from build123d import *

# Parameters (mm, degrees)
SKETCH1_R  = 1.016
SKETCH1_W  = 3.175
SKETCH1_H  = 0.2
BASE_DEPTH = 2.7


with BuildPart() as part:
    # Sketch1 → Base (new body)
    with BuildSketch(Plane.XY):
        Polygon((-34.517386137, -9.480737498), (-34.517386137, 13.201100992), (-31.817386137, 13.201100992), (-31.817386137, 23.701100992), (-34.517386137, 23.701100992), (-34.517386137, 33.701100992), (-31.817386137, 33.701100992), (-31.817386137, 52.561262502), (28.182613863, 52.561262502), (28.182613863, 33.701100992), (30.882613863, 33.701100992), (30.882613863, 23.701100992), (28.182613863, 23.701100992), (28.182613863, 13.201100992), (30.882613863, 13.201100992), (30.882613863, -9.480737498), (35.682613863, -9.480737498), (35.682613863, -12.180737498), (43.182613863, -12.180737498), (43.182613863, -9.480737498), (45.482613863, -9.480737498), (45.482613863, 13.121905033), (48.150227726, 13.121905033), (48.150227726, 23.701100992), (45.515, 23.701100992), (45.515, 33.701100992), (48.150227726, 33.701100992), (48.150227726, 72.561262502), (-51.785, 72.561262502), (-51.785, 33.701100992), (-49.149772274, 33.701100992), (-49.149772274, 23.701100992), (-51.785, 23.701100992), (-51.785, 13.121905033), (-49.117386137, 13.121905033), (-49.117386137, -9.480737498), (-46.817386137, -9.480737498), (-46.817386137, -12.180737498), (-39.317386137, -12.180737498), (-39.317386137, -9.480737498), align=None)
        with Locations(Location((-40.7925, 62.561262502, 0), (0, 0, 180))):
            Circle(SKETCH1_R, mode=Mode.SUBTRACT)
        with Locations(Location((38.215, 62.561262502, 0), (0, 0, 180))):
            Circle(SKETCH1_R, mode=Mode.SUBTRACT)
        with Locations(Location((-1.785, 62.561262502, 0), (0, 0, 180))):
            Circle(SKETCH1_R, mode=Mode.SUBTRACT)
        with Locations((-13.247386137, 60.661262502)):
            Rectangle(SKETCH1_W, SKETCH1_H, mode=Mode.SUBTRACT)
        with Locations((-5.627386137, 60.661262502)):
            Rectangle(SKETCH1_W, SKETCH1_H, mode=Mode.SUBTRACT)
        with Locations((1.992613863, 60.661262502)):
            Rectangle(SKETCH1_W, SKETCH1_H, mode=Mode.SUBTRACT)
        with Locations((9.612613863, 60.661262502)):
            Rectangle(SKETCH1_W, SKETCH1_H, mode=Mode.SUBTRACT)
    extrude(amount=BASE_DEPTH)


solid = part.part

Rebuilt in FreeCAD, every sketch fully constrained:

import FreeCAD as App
import Part
import Sketcher
from FreeCAD import Vector
Q = App.Units.Quantity

doc = App.newDocument("Part")
body = doc.addObject("PartDesign::Body", "Body")

# Sketch on XY plane
sketch1 = doc.addObject("Sketcher::SketchObject", "Sketch")
body.addObject(sketch1)
sketch1.AttachmentSupport = (doc.XY_Plane, [""])
sketch1.MapMode = "FlatFace"
sketch1.addGeometry(Part.LineSegment(Vector(-34.52, -9.48, 0), Vector(-34.52, 13.2, 0)), False)
sketch1.addGeometry(Part.LineSegment(Vector(-34.52, 13.2, 0), Vector(-31.82, 13.2, 0)), False)
sketch1.addGeometry(Part.LineSegment(Vector(-31.82, 13.2, 0), Vector(-31.82, 23.7, 0)), False)
sketch1.addGeometry(Part.LineSegment(Vector(-31.82, 23.7, 0), Vector(-34.52, 23.7, 0)), False)
sketch1.addGeometry(Part.LineSegment(Vector(-34.52, 23.7, 0), Vector(-34.52, 33.7, 0)), False)
sketch1.addGeometry(Part.LineSegment(Vector(-34.52, 33.7, 0), Vector(-31.82, 33.7, 0)), False)
sketch1.addGeometry(Part.LineSegment(Vector(-31.82, 33.7, 0), Vector(-31.82, 52.56, 0)), False)
sketch1.addGeometry(Part.LineSegment(Vector(-31.82, 52.56, 0), Vector(28.18, 52.56, 0)), False)
sketch1.addGeometry(Part.LineSegment(Vector(28.18, 52.56, 0), Vector(28.18, 33.7, 0)), False)
sketch1.addGeometry(Part.LineSegment(Vector(28.18, 33.7, 0), Vector(30.88, 33.7, 0)), False)
sketch1.addGeometry(Part.LineSegment(Vector(30.88, 33.7, 0), Vector(30.88, 23.7, 0)), False)
sketch1.addGeometry(Part.LineSegment(Vector(30.88, 23.7, 0), Vector(28.18, 23.7, 0)), False)
sketch1.addGeometry(Part.LineSegment(Vector(28.18, 23.7, 0), Vector(28.18, 13.2, 0)), False)
sketch1.addGeometry(Part.LineSegment(Vector(28.18, 13.2, 0), Vector(30.88, 13.2, 0)), False)
sketch1.addGeometry(Part.LineSegment(Vector(30.88, 13.2, 0), Vector(30.88, -9.48, 0)), False)
sketch1.addGeometry(Part.LineSegment(Vector(30.88, -9.48, 0), Vector(35.68, -9.48, 0)), False)
sketch1.addGeometry(Part.LineSegment(Vector(35.68, -9.48, 0), Vector(35.68, -12.18, 0)), False)
sketch1.addGeometry(Part.LineSegment(Vector(35.68, -12.18, 0), Vector(43.18, -12.18, 0)), False)
sketch1.addGeometry(Part.LineSegment(Vector(43.18, -12.18, 0), Vector(43.18, -9.48, 0)), False)
sketch1.addGeometry(Part.LineSegment(Vector(43.18, -9.48, 0), Vector(45.48, -9.48, 0)), False)
sketch1.addGeometry(Part.LineSegment(Vector(45.48, -9.48, 0), Vector(45.48, 13.12, 0)), False)
sketch1.addGeometry(Part.LineSegment(Vector(45.48, 13.12, 0), Vector(48.15, 13.12, 0)), False)
sketch1.addGeometry(Part.LineSegment(Vector(48.15, 13.12, 0), Vector(48.15, 23.7, 0)), False)
sketch1.addGeometry(Part.LineSegment(Vector(48.15, 23.7, 0), Vector(45.52, 23.7, 0)), False)
sketch1.addGeometry(Part.LineSegment(Vector(45.52, 23.7, 0), Vector(45.52, 33.7, 0)), False)
sketch1.addGeometry(Part.LineSegment(Vector(45.52, 33.7, 0), Vector(48.15, 33.7, 0)), False)
sketch1.addGeometry(Part.LineSegment(Vector(48.15, 33.7, 0), Vector(48.15, 72.56, 0)), False)
sketch1.addGeometry(Part.LineSegment(Vector(48.15, 72.56, 0), Vector(-51.78, 72.56, 0)), False)
sketch1.addGeometry(Part.LineSegment(Vector(-51.78, 72.56, 0), Vector(-51.78, 33.7, 0)), False)
sketch1.addGeometry(Part.LineSegment(Vector(-51.78, 33.7, 0), Vector(-49.15, 33.7, 0)), False)
sketch1.addGeometry(Part.LineSegment(Vector(-49.15, 33.7, 0), Vector(-49.15, 23.7, 0)), False)
sketch1.addGeometry(Part.LineSegment(Vector(-49.15, 23.7, 0), Vector(-51.78, 23.7, 0)), False)
sketch1.addGeometry(Part.LineSegment(Vector(-51.78, 23.7, 0), Vector(-51.78, 13.12, 0)), False)
sketch1.addGeometry(Part.LineSegment(Vector(-51.78, 13.12, 0), Vector(-49.12, 13.12, 0)), False)
sketch1.addGeometry(Part.LineSegment(Vector(-49.12, 13.12, 0), Vector(-49.12, -9.48, 0)), False)
sketch1.addGeometry(Part.LineSegment(Vector(-49.12, -9.48, 0), Vector(-46.82, -9.48, 0)), False)
sketch1.addGeometry(Part.LineSegment(Vector(-46.82, -9.48, 0), Vector(-46.82, -12.18, 0)), False)
sketch1.addGeometry(Part.LineSegment(Vector(-46.82, -12.18, 0), Vector(-39.32, -12.18, 0)), False)
sketch1.addGeometry(Part.LineSegment(Vector(-39.32, -12.18, 0), Vector(-39.32, -9.48, 0)), False)
sketch1.addGeometry(Part.LineSegment(Vector(-39.32, -9.48, 0), Vector(-34.52, -9.48, 0)), False)
sketch1.addGeometry(Part.LineSegment(Vector(-11.66, 60.56, 0), Vector(-14.83, 60.56, 0)), False)
sketch1.addGeometry(Part.LineSegment(Vector(-14.83, 60.56, 0), Vector(-14.83, 60.76, 0)), False)
sketch1.addGeometry(Part.LineSegment(Vector(-14.83, 60.76, 0), Vector(-11.66, 60.76, 0)), False)
sketch1.addGeometry(Part.LineSegment(Vector(-11.66, 60.76, 0), Vector(-11.66, 60.56, 0)), False)
sketch1.addGeometry(Part.LineSegment(Vector(-4.04, 60.56, 0), Vector(-7.21, 60.56, 0)), False)
sketch1.addGeometry(Part.LineSegment(Vector(-7.21, 60.56, 0), Vector(-7.21, 60.76, 0)), False)
sketch1.addGeometry(Part.LineSegment(Vector(-7.21, 60.76, 0), Vector(-4.04, 60.76, 0)), False)
sketch1.addGeometry(Part.LineSegment(Vector(-4.04, 60.76, 0), Vector(-4.04, 60.56, 0)), False)
sketch1.addGeometry(Part.LineSegment(Vector(3.58, 60.56, 0), Vector(0.41, 60.56, 0)), False)
sketch1.addGeometry(Part.LineSegment(Vector(0.41, 60.56, 0), Vector(0.41, 60.76, 0)), False)
sketch1.addGeometry(Part.LineSegment(Vector(0.41, 60.76, 0), Vector(3.58, 60.76, 0)), False)
sketch1.addGeometry(Part.LineSegment(Vector(3.58, 60.76, 0), Vector(3.58, 60.56, 0)), False)
sketch1.addGeometry(Part.LineSegment(Vector(11.2, 60.56, 0), Vector(8.03, 60.56, 0)), False)
sketch1.addGeometry(Part.LineSegment(Vector(8.03, 60.56, 0), Vector(8.03, 60.76, 0)), False)
sketch1.addGeometry(Part.LineSegment(Vector(8.03, 60.76, 0), Vector(11.2, 60.76, 0)), False)
sketch1.addGeometry(Part.LineSegment(Vector(11.2, 60.76, 0), Vector(11.2, 60.56, 0)), False)
sketch1.addGeometry(Part.Circle(Vector(-40.79, 62.56, 0), Vector(0, 0, 1), 1.02), False)
sketch1.addGeometry(Part.Circle(Vector(-1.78, 62.56, 0), Vector(0, 0, 1), 1.02), False)
sketch1.addGeometry(Part.Circle(Vector(38.22, 62.56, 0), Vector(0, 0, 1), 1.02), False)
sketch1.addConstraint(Sketcher.Constraint("Coincident", 0, 2, 1, 1))
sketch1.addConstraint(Sketcher.Constraint("Coincident", 1, 2, 2, 1))
sketch1.addConstraint(Sketcher.Constraint("Coincident", 2, 2, 3, 1))
sketch1.addConstraint(Sketcher.Constraint("Coincident", 3, 2, 4, 1))
sketch1.addConstraint(Sketcher.Constraint("Coincident", 4, 2, 5, 1))
sketch1.addConstraint(Sketcher.Constraint("Coincident", 5, 2, 6, 1))
sketch1.addConstraint(Sketcher.Constraint("Coincident", 6, 2, 7, 1))
sketch1.addConstraint(Sketcher.Constraint("Coincident", 7, 2, 8, 1))
sketch1.addConstraint(Sketcher.Constraint("Coincident", 8, 2, 9, 1))
sketch1.addConstraint(Sketcher.Constraint("Coincident", 9, 2, 10, 1))
sketch1.addConstraint(Sketcher.Constraint("Coincident", 10, 2, 11, 1))
sketch1.addConstraint(Sketcher.Constraint("Coincident", 11, 2, 12, 1))
sketch1.addConstraint(Sketcher.Constraint("Coincident", 12, 2, 13, 1))
sketch1.addConstraint(Sketcher.Constraint("Coincident", 13, 2, 14, 1))
sketch1.addConstraint(Sketcher.Constraint("Coincident", 14, 2, 15, 1))
sketch1.addConstraint(Sketcher.Constraint("Coincident", 15, 2, 16, 1))
sketch1.addConstraint(Sketcher.Constraint("Coincident", 16, 2, 17, 1))
sketch1.addConstraint(Sketcher.Constraint("Coincident", 17, 2, 18, 1))
sketch1.addConstraint(Sketcher.Constraint("Coincident", 18, 2, 19, 1))
sketch1.addConstraint(Sketcher.Constraint("Coincident", 19, 2, 20, 1))
sketch1.addConstraint(Sketcher.Constraint("Coincident", 20, 2, 21, 1))
sketch1.addConstraint(Sketcher.Constraint("Coincident", 21, 2, 22, 1))
sketch1.addConstraint(Sketcher.Constraint("Coincident", 22, 2, 23, 1))
sketch1.addConstraint(Sketcher.Constraint("Coincident", 23, 2, 24, 1))
sketch1.addConstraint(Sketcher.Constraint("Coincident", 24, 2, 25, 1))
sketch1.addConstraint(Sketcher.Constraint("Coincident", 25, 2, 26, 1))
sketch1.addConstraint(Sketcher.Constraint("Coincident", 26, 2, 27, 1))
sketch1.addConstraint(Sketcher.Constraint("Coincident", 27, 2, 28, 1))
sketch1.addConstraint(Sketcher.Constraint("Coincident", 28, 2, 29, 1))
sketch1.addConstraint(Sketcher.Constraint("Coincident", 29, 2, 30, 1))
sketch1.addConstraint(Sketcher.Constraint("Coincident", 30, 2, 31, 1))
sketch1.addConstraint(Sketcher.Constraint("Coincident", 31, 2, 32, 1))
sketch1.addConstraint(Sketcher.Constraint("Coincident", 32, 2, 33, 1))
sketch1.addConstraint(Sketcher.Constraint("Coincident", 33, 2, 34, 1))
sketch1.addConstraint(Sketcher.Constraint("Coincident", 34, 2, 35, 1))
sketch1.addConstraint(Sketcher.Constraint("Coincident", 35, 2, 36, 1))
sketch1.addConstraint(Sketcher.Constraint("Coincident", 36, 2, 37, 1))
sketch1.addConstraint(Sketcher.Constraint("Coincident", 37, 2, 38, 1))
sketch1.addConstraint(Sketcher.Constraint("Coincident", 38, 2, 39, 1))
sketch1.addConstraint(Sketcher.Constraint("Coincident", 39, 2, 0, 1))
sketch1.addConstraint(Sketcher.Constraint("Coincident", 40, 2, 41, 1))
sketch1.addConstraint(Sketcher.Constraint("Coincident", 41, 2, 42, 1))
sketch1.addConstraint(Sketcher.Constraint("Coincident", 42, 2, 43, 1))
sketch1.addConstraint(Sketcher.Constraint("Coincident", 43, 2, 40, 1))
sketch1.addConstraint(Sketcher.Constraint("Coincident", 44, 2, 45, 1))
sketch1.addConstraint(Sketcher.Constraint("Coincident", 45, 2, 46, 1))
sketch1.addConstraint(Sketcher.Constraint("Coincident", 46, 2, 47, 1))
sketch1.addConstraint(Sketcher.Constraint("Coincident", 47, 2, 44, 1))
sketch1.addConstraint(Sketcher.Constraint("Coincident", 48, 2, 49, 1))
sketch1.addConstraint(Sketcher.Constraint("Coincident", 49, 2, 50, 1))
sketch1.addConstraint(Sketcher.Constraint("Coincident", 50, 2, 51, 1))
sketch1.addConstraint(Sketcher.Constraint("Coincident", 51, 2, 48, 1))
sketch1.addConstraint(Sketcher.Constraint("Coincident", 52, 2, 53, 1))
sketch1.addConstraint(Sketcher.Constraint("Coincident", 53, 2, 54, 1))
sketch1.addConstraint(Sketcher.Constraint("Coincident", 54, 2, 55, 1))
sketch1.addConstraint(Sketcher.Constraint("Coincident", 55, 2, 52, 1))
sketch1.addConstraint(Sketcher.Constraint("Vertical", 0))
sketch1.addConstraint(Sketcher.Constraint("Horizontal", 1))
sketch1.addConstraint(Sketcher.Constraint("Vertical", 2))
sketch1.addConstraint(Sketcher.Constraint("Horizontal", 3))
sketch1.addConstraint(Sketcher.Constraint("Vertical", 4))
sketch1.addConstraint(Sketcher.Constraint("Horizontal", 5))
sketch1.addConstraint(Sketcher.Constraint("Vertical", 6))
sketch1.addConstraint(Sketcher.Constraint("Horizontal", 7))
sketch1.addConstraint(Sketcher.Constraint("Vertical", 8))
sketch1.addConstraint(Sketcher.Constraint("Horizontal", 9))
sketch1.addConstraint(Sketcher.Constraint("Vertical", 10))
sketch1.addConstraint(Sketcher.Constraint("Horizontal", 11))
sketch1.addConstraint(Sketcher.Constraint("Vertical", 12))
sketch1.addConstraint(Sketcher.Constraint("Horizontal", 13))
sketch1.addConstraint(Sketcher.Constraint("Vertical", 14))
sketch1.addConstraint(Sketcher.Constraint("Horizontal", 15))
sketch1.addConstraint(Sketcher.Constraint("Vertical", 16))
sketch1.addConstraint(Sketcher.Constraint("Horizontal", 17))
sketch1.addConstraint(Sketcher.Constraint("Vertical", 18))
sketch1.addConstraint(Sketcher.Constraint("Horizontal", 19))
sketch1.addConstraint(Sketcher.Constraint("Vertical", 20))
sketch1.addConstraint(Sketcher.Constraint("Horizontal", 21))
sketch1.addConstraint(Sketcher.Constraint("Vertical", 22))
sketch1.addConstraint(Sketcher.Constraint("Horizontal", 23))
sketch1.addConstraint(Sketcher.Constraint("Vertical", 24))
sketch1.addConstraint(Sketcher.Constraint("Horizontal", 25))
sketch1.addConstraint(Sketcher.Constraint("Vertical", 26))
sketch1.addConstraint(Sketcher.Constraint("Horizontal", 27))
sketch1.addConstraint(Sketcher.Constraint("Vertical", 28))
sketch1.addConstraint(Sketcher.Constraint("Horizontal", 29))
sketch1.addConstraint(Sketcher.Constraint("Vertical", 30))
sketch1.addConstraint(Sketcher.Constraint("Horizontal", 31))
sketch1.addConstraint(Sketcher.Constraint("Vertical", 32))
sketch1.addConstraint(Sketcher.Constraint("Horizontal", 33))
sketch1.addConstraint(Sketcher.Constraint("Vertical", 34))
sketch1.addConstraint(Sketcher.Constraint("Horizontal", 35))
sketch1.addConstraint(Sketcher.Constraint("Vertical", 36))
sketch1.addConstraint(Sketcher.Constraint("Horizontal", 37))
sketch1.addConstraint(Sketcher.Constraint("Vertical", 38))
sketch1.addConstraint(Sketcher.Constraint("Horizontal", 39))
sketch1.addConstraint(Sketcher.Constraint("Horizontal", 40))
sketch1.addConstraint(Sketcher.Constraint("Vertical", 41))
sketch1.addConstraint(Sketcher.Constraint("Horizontal", 42))
sketch1.addConstraint(Sketcher.Constraint("Vertical", 43))
sketch1.addConstraint(Sketcher.Constraint("Horizontal", 44))
sketch1.addConstraint(Sketcher.Constraint("Vertical", 45))
sketch1.addConstraint(Sketcher.Constraint("Horizontal", 46))
sketch1.addConstraint(Sketcher.Constraint("Vertical", 47))
sketch1.addConstraint(Sketcher.Constraint("Horizontal", 48))
sketch1.addConstraint(Sketcher.Constraint("Vertical", 49))
sketch1.addConstraint(Sketcher.Constraint("Horizontal", 50))
sketch1.addConstraint(Sketcher.Constraint("Vertical", 51))
sketch1.addConstraint(Sketcher.Constraint("Horizontal", 52))
sketch1.addConstraint(Sketcher.Constraint("Vertical", 53))
sketch1.addConstraint(Sketcher.Constraint("Horizontal", 54))
sketch1.addConstraint(Sketcher.Constraint("Vertical", 55))
sketch1.addConstraint(Sketcher.Constraint("Equal", 56, 57))
sketch1.addConstraint(Sketcher.Constraint("Equal", 57, 58))
sketch1.addConstraint(Sketcher.Constraint("Horizontal", 56, 3, 57, 3))
sketch1.addConstraint(Sketcher.Constraint("Horizontal", 57, 3, 58, 3))
sketch1.addConstraint(Sketcher.Constraint("Horizontal", 5, 2, 8, 2))
sketch1.addConstraint(Sketcher.Constraint("Horizontal", 3, 2, 10, 2))
sketch1.addConstraint(Sketcher.Constraint("Horizontal", 1, 2, 12, 2))
sketch1.addConstraint(Sketcher.Constraint("Horizontal", 15, 2, 18, 2))
sketch1.addConstraint(Sketcher.Constraint("Horizontal", 11, 2, 22, 2))
sketch1.addConstraint(Sketcher.Constraint("Horizontal", 9, 2, 24, 2))
sketch1.addConstraint(Sketcher.Constraint("Horizontal", 25, 2, 28, 2))
sketch1.addConstraint(Sketcher.Constraint("Horizontal", 23, 2, 30, 2))
sketch1.addConstraint(Sketcher.Constraint("Horizontal", 21, 2, 32, 2))
sketch1.addConstraint(Sketcher.Constraint("Horizontal", 19, 2, 34, 2))
sketch1.addConstraint(Sketcher.Constraint("Horizontal", 17, 2, 36, 2))
sketch1.addConstraint(Sketcher.Constraint("Horizontal", 35, 2, 38, 2))
sketch1.addConstraint(Sketcher.Constraint("Horizontal", 43, 2, 44, 2))
sketch1.addConstraint(Sketcher.Constraint("Horizontal", 42, 2, 45, 2))
sketch1.addConstraint(Sketcher.Constraint("Horizontal", 47, 2, 48, 2))
sketch1.addConstraint(Sketcher.Constraint("Horizontal", 46, 2, 49, 2))
sketch1.addConstraint(Sketcher.Constraint("Horizontal", 51, 2, 52, 2))
sketch1.addConstraint(Sketcher.Constraint("Horizontal", 50, 2, 53, 2))
sketch1.addConstraint(Sketcher.Constraint("Vertical", 0, 2, 3, 2))
sketch1.addConstraint(Sketcher.Constraint("Vertical", 2, 2, 5, 2))
sketch1.addConstraint(Sketcher.Constraint("Vertical", 8, 2, 11, 2))
sketch1.addConstraint(Sketcher.Constraint("Vertical", 10, 2, 13, 2))
sketch1.addConstraint(Sketcher.Constraint("Vertical", 22, 2, 25, 2))
sketch1.addConstraint(Sketcher.Constraint("Vertical", 28, 2, 31, 2))
sketch1.addConstraint(Sketcher.Constraint("Equal", 5, 9))
sketch1.addConstraint(Sketcher.Constraint("Equal", 25, 29))
sketch1.addConstraint(Sketcher.Constraint("Equal", 21, 33))
sketch1.addConstraint(Sketcher.Constraint("Equal", 19, 35))
sketch1.addConstraint(Sketcher.Constraint("Equal", 17, 37))
sketch1.addConstraint(Sketcher.Constraint("Equal", 15, 39))
sketch1.addConstraint(Sketcher.Constraint("Equal", 42, 44))
sketch1.addConstraint(Sketcher.Constraint("Equal", 46, 48))
sketch1.addConstraint(Sketcher.Constraint("Equal", 50, 52))
sketch1.addConstraint(Sketcher.Constraint("Equal", 13, 16))
sketch1.addConstraint(Sketcher.Constraint("DistanceX", 7, 1, 7, 2, Q("60 mm")))
sketch1.addConstraint(Sketcher.Constraint("DistanceY", 4, 1, 4, 2, Q("10 mm")))
sketch1.addConstraint(Sketcher.Constraint("Diameter", 56, Q("2.032 mm")))
sketch1.addConstraint(Sketcher.Constraint("DistanceX", 1, 1, 1, 2, Q("2.7 mm")))
sketch1.addConstraint(Sketcher.Constraint("DistanceX", 15, 1, 15, 2, Q("4.8 mm")))
sketch1.addConstraint(Sketcher.Constraint("DistanceX", 17, 1, 17, 2, Q("7.5 mm")))
sketch1.addConstraint(Sketcher.Constraint("DistanceX", 19, 1, 19, 2, Q("2.3 mm")))
sketch1.addConstraint(Sketcher.Constraint("DistanceY", 2, 1, 2, 2, Q("10.5 mm")))
sketch1.addConstraint(Sketcher.Constraint("DistanceY", 41, 1, 41, 2, Q("0.2 mm")))
sketch1.addConstraint(Sketcher.Constraint("DistanceX", 57, 3, 58, 3, Q("40 mm")))
sketch1.addConstraint(Sketcher.Constraint("DistanceY", 6, 2, 56, 3, Q("10 mm")))
sketch1.addConstraint(Sketcher.Constraint("DistanceY", 58, 3, 26, 2, Q("10 mm")))
sketch1.addConstraint(Sketcher.Constraint("DistanceX", 27, 2, 57, 3, Q("50 mm")))
sketch1.addConstraint(Sketcher.Constraint("DistanceY", 40, 2, 57, 3, Q("2 mm")))
sketch1.addConstraint(Sketcher.Constraint("DistanceX", 40, 2, 40, 1, Q("3.175 mm")))
sketch1.addConstraint(Sketcher.Constraint("DistanceX", 40, 2, 44, 2, Q("7.62 mm")))
sketch1.addConstraint(Sketcher.Constraint("DistanceX", 44, 2, 48, 2, Q("7.62 mm")))
sketch1.addConstraint(Sketcher.Constraint("DistanceX", 48, 2, 52, 2, Q("7.62 mm")))
sketch1.addConstraint(Sketcher.Constraint("DistanceX", 57, 3, -1, 1, Q("1.785 mm")))
sketch1.addConstraint(Sketcher.Constraint("DistanceX", -1, 1, 23, 2, Q("45.515 mm")))
sketch1.addConstraint(Sketcher.Constraint("DistanceY", 0, 1, 0, 2, Q("22.681838 mm")))
sketch1.addConstraint(Sketcher.Constraint("DistanceY", 6, 1, 6, 2, Q("18.860162 mm")))
sketch1.addConstraint(Sketcher.Constraint("DistanceX", 56, 3, -1, 1, Q("40.7925 mm")))
sketch1.addConstraint(Sketcher.Constraint("DistanceY", -1, 1, 0, 2, Q("13.201101 mm")))
sketch1.addConstraint(Sketcher.Constraint("DistanceX", 6, 2, 40, 2, Q("16.9825 mm")))
sketch1.addConstraint(Sketcher.Constraint("DistanceX", 21, 1, 21, 2, Q("2.667614 mm")))
sketch1.addConstraint(Sketcher.Constraint("DistanceY", 20, 1, 20, 2, Q("22.602643 mm")))
pad1 = doc.addObject("PartDesign::Pad", "Pad")
body.addObject(pad1)
pad1.Profile = sketch1
pad1.Length = 2.7

doc.recompute()
